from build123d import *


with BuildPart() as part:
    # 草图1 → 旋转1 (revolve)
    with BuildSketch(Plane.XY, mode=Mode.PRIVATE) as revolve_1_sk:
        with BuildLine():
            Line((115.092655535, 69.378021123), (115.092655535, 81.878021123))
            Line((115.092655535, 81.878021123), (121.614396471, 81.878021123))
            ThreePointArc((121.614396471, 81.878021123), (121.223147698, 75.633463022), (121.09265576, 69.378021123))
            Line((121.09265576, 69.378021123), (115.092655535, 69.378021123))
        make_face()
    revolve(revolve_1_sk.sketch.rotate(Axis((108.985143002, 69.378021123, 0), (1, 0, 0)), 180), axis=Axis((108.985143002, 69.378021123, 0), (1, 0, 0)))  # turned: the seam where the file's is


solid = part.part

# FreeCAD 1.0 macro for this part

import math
import FreeCAD as App
import Part
import Sketcher
Q = App.Units.Quantity

doc = App.newDocument("Part")
body = doc.addObject("PartDesign::Body", "Body")

# Sketch on XY plane
sketch1 = body.newObject("Sketcher::SketchObject", "Sketch")
sketch1.AttachmentSupport = (doc.getObject("XY_Plane"), [""])
sketch1.MapMode = "FlatFace"
sketch1.addGeometry([
    Part.LineSegment(App.Vector(115, 82, 0), App.Vector(115, 69, 0)),
    Part.LineSegment(App.Vector(115, 69, 0), App.Vector(121, 69, 0)),
    Part.ArcOfCircle(Part.Circle(App.Vector(271, 69, 0), App.Vector(0, 0, 1), 150), math.radians(175.22), math.radians(180)),
    Part.LineSegment(App.Vector(122, 82, 0), App.Vector(115, 82, 0)),
], False)
sketch1.addGeometry(Part.LineSegment(App.Vector(115, 69, 0), App.Vector(271, 69, 0)), True)  # axis
sketch1.addConstraint([
    Sketcher.Constraint("Coincident", 0, 2, 1, 1),
    Sketcher.Constraint("Coincident", 1, 2, 2, 2),
    Sketcher.Constraint("Coincident", 2, 1, 3, 1),
    Sketcher.Constraint("Coincident", 3, 2, 0, 1),
    Sketcher.Constraint("Vertical", 0),
    Sketcher.Constraint("Horizontal", 1),
    Sketcher.Constraint("Horizontal", 3),
    Sketcher.Constraint("Horizontal", 4),
    Sketcher.Constraint("Coincident", 4, 1, 0, 2),
    Sketcher.Constraint("Coincident", 4, 2, 2, 3),
    Sketcher.Constraint("Radius", 2, Q("150 mm")),
    Sketcher.Constraint("DistanceX", 1, 1, 1, 2, Q("6 mm")),
    Sketcher.Constraint("DistanceY", 0, 2, 0, 1, Q("12.5 mm")),
    Sketcher.Constraint("DistanceY", -1, 1, 2, 3, Q("69.378021 mm")),
    Sketcher.Constraint("DistanceX", -1, 1, 2, 3, Q("271.092656 mm")),
])
revolution = body.newObject("PartDesign::Revolution", "Revolution")
revolution.Profile = sketch1
revolution.ReferenceAxis = (sketch1, ["Axis0"])
revolution.Angle = 360

doc.recompute()
